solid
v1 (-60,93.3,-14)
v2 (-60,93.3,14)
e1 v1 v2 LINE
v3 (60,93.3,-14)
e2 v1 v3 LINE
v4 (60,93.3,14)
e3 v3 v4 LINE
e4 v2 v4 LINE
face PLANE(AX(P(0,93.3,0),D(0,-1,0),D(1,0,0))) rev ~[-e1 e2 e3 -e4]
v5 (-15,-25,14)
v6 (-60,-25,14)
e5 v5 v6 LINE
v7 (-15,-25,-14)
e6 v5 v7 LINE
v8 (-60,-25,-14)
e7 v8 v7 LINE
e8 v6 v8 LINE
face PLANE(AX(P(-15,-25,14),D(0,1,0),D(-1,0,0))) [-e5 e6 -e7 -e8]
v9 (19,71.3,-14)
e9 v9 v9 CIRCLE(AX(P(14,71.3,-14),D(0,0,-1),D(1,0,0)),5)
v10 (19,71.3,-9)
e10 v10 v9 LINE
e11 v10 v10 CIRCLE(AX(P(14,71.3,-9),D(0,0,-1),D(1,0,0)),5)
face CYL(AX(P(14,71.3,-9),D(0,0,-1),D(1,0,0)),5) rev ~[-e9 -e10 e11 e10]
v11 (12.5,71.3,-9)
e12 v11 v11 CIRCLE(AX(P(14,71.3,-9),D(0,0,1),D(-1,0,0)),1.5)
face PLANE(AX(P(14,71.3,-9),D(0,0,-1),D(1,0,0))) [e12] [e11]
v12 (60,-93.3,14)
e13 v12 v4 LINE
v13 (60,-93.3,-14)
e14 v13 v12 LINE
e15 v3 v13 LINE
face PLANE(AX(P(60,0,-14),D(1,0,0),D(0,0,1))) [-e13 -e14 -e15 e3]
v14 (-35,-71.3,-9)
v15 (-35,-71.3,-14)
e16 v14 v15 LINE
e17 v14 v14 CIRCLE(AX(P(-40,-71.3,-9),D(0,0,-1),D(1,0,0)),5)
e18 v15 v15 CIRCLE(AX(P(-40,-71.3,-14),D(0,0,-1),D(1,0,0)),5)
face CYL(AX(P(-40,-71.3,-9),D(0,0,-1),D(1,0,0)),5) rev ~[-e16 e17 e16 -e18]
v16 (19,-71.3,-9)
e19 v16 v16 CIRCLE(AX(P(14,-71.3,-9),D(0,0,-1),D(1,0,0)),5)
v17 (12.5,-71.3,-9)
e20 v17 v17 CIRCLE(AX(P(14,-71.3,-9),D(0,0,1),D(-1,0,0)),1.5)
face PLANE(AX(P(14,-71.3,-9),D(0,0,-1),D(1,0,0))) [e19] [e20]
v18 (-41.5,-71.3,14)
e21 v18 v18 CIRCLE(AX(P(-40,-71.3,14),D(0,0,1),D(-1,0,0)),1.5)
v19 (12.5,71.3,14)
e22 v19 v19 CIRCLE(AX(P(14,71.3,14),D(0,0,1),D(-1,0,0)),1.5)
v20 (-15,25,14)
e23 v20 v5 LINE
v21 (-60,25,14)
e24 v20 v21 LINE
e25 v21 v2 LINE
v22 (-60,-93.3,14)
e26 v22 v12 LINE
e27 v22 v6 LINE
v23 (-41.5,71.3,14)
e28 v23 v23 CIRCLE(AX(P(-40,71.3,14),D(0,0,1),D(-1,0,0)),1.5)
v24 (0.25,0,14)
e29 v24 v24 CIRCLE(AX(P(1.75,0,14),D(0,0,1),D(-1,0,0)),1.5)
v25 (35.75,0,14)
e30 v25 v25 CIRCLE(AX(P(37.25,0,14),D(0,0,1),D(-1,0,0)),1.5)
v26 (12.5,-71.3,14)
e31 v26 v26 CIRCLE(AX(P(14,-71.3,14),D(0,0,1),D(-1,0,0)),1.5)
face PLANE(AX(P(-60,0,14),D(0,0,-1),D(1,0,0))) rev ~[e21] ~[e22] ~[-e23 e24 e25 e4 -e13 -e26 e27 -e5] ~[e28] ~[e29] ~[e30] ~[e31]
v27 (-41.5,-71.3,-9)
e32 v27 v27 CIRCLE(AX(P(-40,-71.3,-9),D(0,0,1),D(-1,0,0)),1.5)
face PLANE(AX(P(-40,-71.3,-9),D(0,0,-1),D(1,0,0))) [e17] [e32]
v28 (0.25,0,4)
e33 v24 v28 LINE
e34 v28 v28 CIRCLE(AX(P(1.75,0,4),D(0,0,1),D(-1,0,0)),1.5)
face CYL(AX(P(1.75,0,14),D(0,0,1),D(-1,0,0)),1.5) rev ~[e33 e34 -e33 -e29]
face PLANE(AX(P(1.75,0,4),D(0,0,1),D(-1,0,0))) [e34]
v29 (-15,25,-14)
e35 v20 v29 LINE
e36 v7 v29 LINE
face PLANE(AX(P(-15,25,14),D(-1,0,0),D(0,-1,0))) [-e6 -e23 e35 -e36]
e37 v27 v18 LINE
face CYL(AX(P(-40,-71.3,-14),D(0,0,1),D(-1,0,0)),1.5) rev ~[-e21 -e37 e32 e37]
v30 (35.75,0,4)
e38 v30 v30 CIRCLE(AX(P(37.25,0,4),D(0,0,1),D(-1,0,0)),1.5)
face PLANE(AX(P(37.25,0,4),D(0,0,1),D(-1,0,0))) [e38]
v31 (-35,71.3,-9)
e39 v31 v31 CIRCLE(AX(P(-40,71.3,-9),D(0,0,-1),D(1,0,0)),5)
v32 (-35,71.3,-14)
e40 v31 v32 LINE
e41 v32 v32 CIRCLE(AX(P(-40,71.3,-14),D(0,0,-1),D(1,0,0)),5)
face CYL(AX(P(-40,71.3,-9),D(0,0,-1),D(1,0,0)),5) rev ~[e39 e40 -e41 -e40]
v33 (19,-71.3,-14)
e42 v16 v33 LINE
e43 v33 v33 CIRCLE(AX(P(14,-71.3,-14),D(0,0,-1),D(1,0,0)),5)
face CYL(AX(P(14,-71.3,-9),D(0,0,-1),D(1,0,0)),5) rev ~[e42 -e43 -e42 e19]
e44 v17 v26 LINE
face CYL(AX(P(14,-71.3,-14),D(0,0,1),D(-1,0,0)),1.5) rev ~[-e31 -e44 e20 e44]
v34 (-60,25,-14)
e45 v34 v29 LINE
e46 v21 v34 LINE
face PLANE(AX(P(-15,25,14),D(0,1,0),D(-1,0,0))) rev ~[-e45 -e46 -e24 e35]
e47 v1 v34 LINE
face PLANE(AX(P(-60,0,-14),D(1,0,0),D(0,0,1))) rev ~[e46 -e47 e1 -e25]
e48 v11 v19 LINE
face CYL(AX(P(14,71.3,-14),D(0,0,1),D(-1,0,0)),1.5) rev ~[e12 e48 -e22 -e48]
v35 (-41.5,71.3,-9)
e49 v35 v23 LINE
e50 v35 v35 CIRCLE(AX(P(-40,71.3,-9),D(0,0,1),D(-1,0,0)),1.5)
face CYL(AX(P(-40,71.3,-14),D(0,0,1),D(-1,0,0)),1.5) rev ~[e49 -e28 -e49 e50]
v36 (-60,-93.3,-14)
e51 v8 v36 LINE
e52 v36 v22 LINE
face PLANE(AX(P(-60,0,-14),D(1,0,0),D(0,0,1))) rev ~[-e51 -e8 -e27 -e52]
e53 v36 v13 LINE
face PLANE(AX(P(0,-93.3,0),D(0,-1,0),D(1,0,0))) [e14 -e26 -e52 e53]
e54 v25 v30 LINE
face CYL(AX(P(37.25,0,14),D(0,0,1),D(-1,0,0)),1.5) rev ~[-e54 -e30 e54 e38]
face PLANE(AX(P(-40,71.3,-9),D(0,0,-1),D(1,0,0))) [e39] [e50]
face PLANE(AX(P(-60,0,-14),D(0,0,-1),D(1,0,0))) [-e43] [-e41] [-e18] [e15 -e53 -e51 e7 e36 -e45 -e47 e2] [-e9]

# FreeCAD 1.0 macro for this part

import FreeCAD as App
import Part
import Sketcher
from FreeCAD import Vector

doc = App.newDocument("Part")
params = doc.addObject("Spreadsheet::Sheet", "Params")
for row, (alias, value) in enumerate([
    ("sketch1_width", "120 mm"),
    ("sketch1_height", "28 mm"),
    ("pad1_length", "186.6 mm"),
    ("sketch2_diameter", "3 mm"),
    ("pocket1_length", "10 mm"),
    ("sketch3_diameter", "3 mm"),
    ("hole_diameter", "3 mm"),
    ("hole_cbore_diameter", "10 mm"),
    ("hole_cbore_depth", "5 mm"),
    ("sketch4_width", "45 mm"),
    ("sketch4_height", "50 mm"),
], start=1):
    params.set(f"A{row}", alias)
    params.set(f"B{row}", "=" + value)
    params.setAlias(f"B{row}", alias)

body = doc.addObject("PartDesign::Body", "Body")

# Sketch on XZ plane
sketch1 = body.newObject("Sketcher::SketchObject", "Sketch")
sketch1.AttachmentSupport = (doc.getObject("XZ_Plane"), [""])
sketch1.MapMode = "FlatFace"
sketch1.addGeometry([
    Part.LineSegment(Vector(-60, 14, 0), Vector(-60, -14, 0)),
    Part.LineSegment(Vector(-60, -14, 0), Vector(60, -14, 0)),
    Part.LineSegment(Vector(60, -14, 0), Vector(60, 14, 0)),
    Part.LineSegment(Vector(60, 14, 0), Vector(-60, 14, 0)),
], False)
sketch1.addConstraint([
    Sketcher.Constraint("Coincident", 0, 2, 1, 1),
    Sketcher.Constraint("Coincident", 1, 2, 2, 1),
    Sketcher.Constraint("Coincident", 2, 2, 3, 1),
    Sketcher.Constraint("Coincident", 3, 2, 0, 1),
    Sketcher.Constraint("Vertical", 0),
    Sketcher.Constraint("Horizontal", 1),
    Sketcher.Constraint("Vertical", 2),
    Sketcher.Constraint("Horizontal", 3),
    Sketcher.Constraint("Symmetric", 0, 2, 2, 2, -1, 1),
    Sketcher.Constraint("DistanceX", 1, 1, 1, 2, 120.0),
    Sketcher.Constraint("DistanceY", 0, 2, 0, 1, 28.0),
])
sketch1.setExpression("Constraints[9]", "Params.sketch1_width")
sketch1.setExpression("Constraints[10]", "Params.sketch1_height")
pad1 = body.newObject("PartDesign::Pad", "Pad")
pad1.Profile = sketch1
pad1.setExpression("Length", "Params.pad1_length")
pad1.Midplane = True

# Sketch on XY plane
sketch2 = body.newObject("Sketcher::SketchObject", "Sketch001")
sketch2.AttachmentSupport = (doc.getObject("XY_Plane"), [""])
sketch2.MapMode = "FlatFace"
sketch2.AttachmentOffset = App.Placement(Vector(0, 0, 14), App.Rotation())
sketch2.addGeometry([
    Part.Circle(Vector(37.2, 0, 0), Vector(0, 0, 1), 1.5),
    Part.Circle(Vector(1.8, 0, 0), Vector(0, 0, 1), 1.5),
], False)
sketch2.addConstraint([
    Sketcher.Constraint("Equal", 0, 1),
    Sketcher.Constraint("PointOnObject", 0, 3, -1),
    Sketcher.Constraint("PointOnObject", 1, 3, -1),
    Sketcher.Constraint("Diameter", 0, 3.0),
    Sketcher.Constraint("DistanceX", 1, 3, 0, 3, 35.5),
    Sketcher.Constraint("DistanceX", -1, 1, 0, 3, 37.25),
])
sketch2.setExpression("Constraints[3]", "Params.sketch2_diameter")
pocket1 = body.newObject("PartDesign::Pocket", "Pocket")
pocket1.Profile = sketch2
pocket1.setExpression("Length", "Params.pocket1_length")

# Sketch on XY plane
sketch3 = body.newObject("Sketcher::SketchObject", "Sketch002")
sketch3.AttachmentSupport = (doc.getObject("XY_Plane"), [""])
sketch3.MapMode = "FlatFace"
sketch3.AttachmentOffset = App.Placement(Vector(0, 0, -14), App.Rotation())
sketch3.addGeometry([
    Part.Circle(Vector(-40, -71.3, 0), Vector(0, 0, 1), 1.5),
    Part.Circle(Vector(14, -71.3, 0), Vector(0, 0, 1), 1.5),
    Part.Circle(Vector(14, 71.3, 0), Vector(0, 0, 1), 1.5),
    Part.Circle(Vector(-40, 71.3, 0), Vector(0, 0, 1), 1.5),
], False)
sketch3.addConstraint([
    Sketcher.Constraint("Equal", 0, 1),
    Sketcher.Constraint("Equal", 1, 2),
    Sketcher.Constraint("Equal", 2, 3),
    Sketcher.Constraint("Symmetric", 1, 3, 2, 3, -1),
    Sketcher.Constraint("Symmetric", 0, 3, 3, 3, -1),
    Sketcher.Constraint("Horizontal", 0, 3, 1, 3),
    Sketcher.Constraint("Diameter", 0, 3.0),
    Sketcher.Constraint("DistanceX", 0, 3, -1, 1, 40.0),
    Sketcher.Constraint("DistanceX", -1, 1, 1, 3, 14.0),
    Sketcher.Constraint("DistanceY", 0, 3, -1, 1, 71.3),
])
sketch3.setExpression("Constraints[6]", "Params.sketch3_diameter")
doc.recompute()
hole = body.newObject("PartDesign::Hole", "Hole")
hole.Profile = sketch3
hole.ThreadType = "None"
hole.setExpression("Diameter", "Params.hole_diameter")
hole.DepthType = "ThroughAll"
hole.HoleCutType = "Counterbore"
hole.setExpression("HoleCutDiameter", "Params.hole_cbore_diameter")
hole.setExpression("HoleCutDepth", "Params.hole_cbore_depth")
hole.Reversed = True

# Sketch on XY plane
sketch4 = body.newObject("Sketcher::SketchObject", "Sketch003")
sketch4.AttachmentSupport = (doc.getObject("XY_Plane"), [""])
sketch4.MapMode = "FlatFace"
sketch4.AttachmentOffset = App.Placement(Vector(0, 0, 14), App.Rotation())
sketch4.addGeometry([
    Part.LineSegment(Vector(-15, -25, 0), Vector(-15, 25, 0)),
    Part.LineSegment(Vector(-15, 25, 0), Vector(-60, 25, 0)),
    Part.LineSegment(Vector(-60, 25, 0), Vector(-60, -25, 0)),
    Part.LineSegment(Vector(-60, -25, 0), Vector(-15, -25, 0)),
], False)
sketch4.addConstraint([
    Sketcher.Constraint("Coincident", 0, 2, 1, 1),
    Sketcher.Constraint("Coincident", 1, 2, 2, 1),
    Sketcher.Constraint("Coincident", 2, 2, 3, 1),
    Sketcher.Constraint("Coincident", 3, 2, 0, 1),
    Sketcher.Constraint("Vertical", 0),
    Sketcher.Constraint("Horizontal", 1),
    Sketcher.Constraint("Vertical", 2),
    Sketcher.Constraint("Horizontal", 3),
    Sketcher.Constraint("DistanceX", 1, 2, 1, 1, 45.0),
    Sketcher.Constraint("DistanceY", 0, 1, 0, 2, 50.0),
    Sketcher.Constraint("DistanceX", 0, 2, -1, 1, 15.0),
    Sketcher.Constraint("DistanceY", -1, 1, 0, 2, 25.0),
])
sketch4.setExpression("Constraints[8]", "Params.sketch4_width")
sketch4.setExpression("Constraints[9]", "Params.sketch4_height")
pocket2 = body.newObject("PartDesign::Pocket", "Pocket001")
pocket2.Profile = sketch4
pocket2.Type = "ThroughAll"

doc.recompute()
